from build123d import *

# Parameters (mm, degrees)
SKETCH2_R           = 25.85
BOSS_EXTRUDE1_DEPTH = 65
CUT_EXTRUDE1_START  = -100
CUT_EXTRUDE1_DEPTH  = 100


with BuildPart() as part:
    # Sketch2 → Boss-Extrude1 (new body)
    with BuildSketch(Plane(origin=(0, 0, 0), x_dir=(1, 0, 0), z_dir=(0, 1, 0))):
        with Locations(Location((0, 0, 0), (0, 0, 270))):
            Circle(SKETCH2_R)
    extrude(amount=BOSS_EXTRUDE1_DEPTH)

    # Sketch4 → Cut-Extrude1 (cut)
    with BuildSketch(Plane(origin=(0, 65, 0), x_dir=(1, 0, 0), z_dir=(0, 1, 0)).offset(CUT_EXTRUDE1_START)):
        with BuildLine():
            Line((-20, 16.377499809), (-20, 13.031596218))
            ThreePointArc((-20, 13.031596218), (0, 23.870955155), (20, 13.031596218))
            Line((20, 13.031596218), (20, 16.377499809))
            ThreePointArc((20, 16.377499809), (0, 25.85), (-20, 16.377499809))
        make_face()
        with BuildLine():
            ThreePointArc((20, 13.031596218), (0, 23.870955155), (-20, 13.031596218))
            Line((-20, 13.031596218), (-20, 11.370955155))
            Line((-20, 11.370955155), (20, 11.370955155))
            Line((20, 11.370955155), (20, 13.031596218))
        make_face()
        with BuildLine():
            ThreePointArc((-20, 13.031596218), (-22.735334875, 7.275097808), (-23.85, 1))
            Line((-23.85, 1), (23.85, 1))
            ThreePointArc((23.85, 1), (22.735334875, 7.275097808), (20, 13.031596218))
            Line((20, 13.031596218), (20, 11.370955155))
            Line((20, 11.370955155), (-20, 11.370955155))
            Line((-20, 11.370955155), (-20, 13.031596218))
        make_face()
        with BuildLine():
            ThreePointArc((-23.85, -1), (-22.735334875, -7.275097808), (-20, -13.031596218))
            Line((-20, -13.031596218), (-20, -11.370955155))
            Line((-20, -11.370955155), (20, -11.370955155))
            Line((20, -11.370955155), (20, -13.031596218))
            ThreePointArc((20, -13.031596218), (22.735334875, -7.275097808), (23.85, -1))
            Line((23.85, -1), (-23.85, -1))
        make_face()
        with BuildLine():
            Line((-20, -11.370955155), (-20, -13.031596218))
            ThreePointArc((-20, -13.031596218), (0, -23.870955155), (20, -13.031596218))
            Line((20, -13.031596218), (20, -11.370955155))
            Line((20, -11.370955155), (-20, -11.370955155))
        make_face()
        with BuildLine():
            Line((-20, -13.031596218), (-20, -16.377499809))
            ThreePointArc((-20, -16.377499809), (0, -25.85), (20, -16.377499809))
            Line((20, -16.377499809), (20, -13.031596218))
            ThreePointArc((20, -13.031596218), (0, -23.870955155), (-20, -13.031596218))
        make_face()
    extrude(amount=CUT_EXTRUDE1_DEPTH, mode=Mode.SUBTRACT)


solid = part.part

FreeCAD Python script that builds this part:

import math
import FreeCAD as App
import Part
import Sketcher

V = App.Vector
Q = App.Units.Quantity

doc = App.newDocument("Part")
body = doc.addObject("PartDesign::Body", "Body")

# Sketch on XZ plane
sketch1 = doc.addObject("Sketcher::SketchObject", "Sketch")
body.addObject(sketch1)
sketch1.AttachmentSupport = (doc.XZ_Plane, [""])
sketch1.MapMode = "FlatFace"
sketch1.addGeometry(Part.Circle(V(0, 0, 0), V(0, 0, 1), 26), False)
sketch1.addConstraint(Sketcher.Constraint("Coincident", 0, 3, -1, 1))
sketch1.addConstraint(Sketcher.Constraint("Diameter", 0, Q("51.7 mm")))
pad1 = doc.addObject("PartDesign::Pad", "Pad")
body.addObject(pad1)
pad1.Profile = sketch1
pad1.Length = 65
pad1.Reversed = True

# Sketch on XZ plane
sketch2 = doc.addObject("Sketcher::SketchObject", "Sketch001")
body.addObject(sketch2)
sketch2.AttachmentSupport = (doc.XZ_Plane, [""])
sketch2.MapMode = "FlatFace"
sketch2.AttachmentOffset = App.Placement(V(0, 0, 35), App.Rotation())
sketch2.addGeometry(Part.LineSegment(V(-20, -16.4, 0), V(-20, -13, 0)), False)
sketch2.addGeometry(Part.ArcOfCircle(Part.Circle(V(0, 0, 0), V(0, 0, 1), 23.9), math.radians(-178), math.radians(-147)), False)
sketch2.addGeometry(Part.LineSegment(V(-23.9, -1, 0), V(23.9, -1, 0)), False)
sketch2.addGeometry(Part.ArcOfCircle(Part.Circle(V(0, 0, 0), V(0, 0, 1), 23.9), math.radians(-33), math.radians(-2)), False)
sketch2.addGeometry(Part.LineSegment(V(20, -13, 0), V(20, -16.4, 0)), False)
sketch2.addGeometry(Part.ArcOfCircle(Part.Circle(V(0, 0, 0), V(0, 0, 1), 25.9), math.radians(-141), math.radians(-39)), False)
sketch2.addGeometry(Part.ArcOfCircle(Part.Circle(V(0, 0, 0), V(0, 0, 1), 23.9), math.radians(147), math.radians(178)), False)
sketch2.addGeometry(Part.LineSegment(V(-20, 13, 0), V(-20, 16.4, 0)), False)
sketch2.addGeometry(Part.ArcOfCircle(Part.Circle(V(0, 0, 0), V(0, 0, 1), 25.9), math.radians(39), math.radians(141)), False)
sketch2.addGeometry(Part.LineSegment(V(20, 16.4, 0), V(20, 13, 0)), False)
sketch2.addGeometry(Part.ArcOfCircle(Part.Circle(V(0, 0, 0), V(0, 0, 1), 23.9), math.radians(2), math.radians(33)), False)
sketch2.addGeometry(Part.LineSegment(V(23.9, 1, 0), V(-23.9, 1, 0)), False)
sketch2.addConstraint(Sketcher.Constraint("Coincident", 0, 2, 1, 2))
sketch2.addConstraint(Sketcher.Constraint("Coincident", 1, 1, 2, 1))
sketch2.addConstraint(Sketcher.Constraint("Coincident", 2, 2, 3, 2))
sketch2.addConstraint(Sketcher.Constraint("Coincident", 3, 1, 4, 1))
sketch2.addConstraint(Sketcher.Constraint("Coincident", 4, 2, 5, 2))
sketch2.addConstraint(Sketcher.Constraint("Coincident", 5, 1, 0, 1))
sketch2.addConstraint(Sketcher.Constraint("Coincident", 6, 1, 7, 1))
sketch2.addConstraint(Sketcher.Constraint("Coincident", 7, 2, 8, 2))
sketch2.addConstraint(Sketcher.Constraint("Coincident", 8, 1, 9, 1))
sketch2.addConstraint(Sketcher.Constraint("Coincident", 9, 2, 10, 2))
sketch2.addConstraint(Sketcher.Constraint("Coincident", 10, 1, 11, 1))
sketch2.addConstraint(Sketcher.Constraint("Coincident", 11, 2, 6, 2))
sketch2.addConstraint(Sketcher.Constraint("Vertical", 0))
sketch2.addConstraint(Sketcher.Constraint("Horizontal", 2))
sketch2.addConstraint(Sketcher.Constraint("Vertical", 4))
sketch2.addConstraint(Sketcher.Constraint("Vertical", 7))
sketch2.addConstraint(Sketcher.Constraint("Vertical", 9))
sketch2.addConstraint(Sketcher.Constraint("Horizontal", 11))
sketch2.addConstraint(Sketcher.Constraint("Coincident", 1, 3, -1, 1))
sketch2.addConstraint(Sketcher.Constraint("Coincident", 3, 3, -1, 1))
sketch2.addConstraint(Sketcher.Constraint("Coincident", 5, 3, -1, 1))
sketch2.addConstraint(Sketcher.Constraint("Coincident", 6, 3, -1, 1))
sketch2.addConstraint(Sketcher.Constraint("Coincident", 8, 3, -1, 1))
sketch2.addConstraint(Sketcher.Constraint("Coincident", 10, 3, -1, 1))
sketch2.addConstraint(Sketcher.Constraint("Equal", 1, 3))
sketch2.addConstraint(Sketcher.Constraint("Equal", 3, 6))
sketch2.addConstraint(Sketcher.Constraint("Equal", 5, 8))
sketch2.addConstraint(Sketcher.Constraint("Equal", 6, 10))
sketch2.addConstraint(Sketcher.Constraint("Horizontal", 0, 2, 3, 1))
sketch2.addConstraint(Sketcher.Constraint("Horizontal", 7, 2, 8, 1))
sketch2.addConstraint(Sketcher.Constraint("Vertical", 5, 1, 6, 1))
sketch2.addConstraint(Sketcher.Constraint("Vertical", 2, 2, 10, 1))
sketch2.addConstraint(Sketcher.Constraint("Radius", 5, Q("25.85 mm")))
sketch2.addConstraint(Sketcher.Constraint("DistanceX", 2, 1, 2, 2, Q("47.7 mm")))
sketch2.addConstraint(Sketcher.Constraint("DistanceX", 0, 2, -1, 1, Q("20 mm")))
sketch2.addConstraint(Sketcher.Constraint("DistanceY", 1, 1, -1, 1, Q("1 mm")))
pocket1 = doc.addObject("PartDesign::Pocket", "Pocket")
body.addObject(pocket1)
pocket1.Profile = sketch2
pocket1.Length = 100

doc.recompute()
